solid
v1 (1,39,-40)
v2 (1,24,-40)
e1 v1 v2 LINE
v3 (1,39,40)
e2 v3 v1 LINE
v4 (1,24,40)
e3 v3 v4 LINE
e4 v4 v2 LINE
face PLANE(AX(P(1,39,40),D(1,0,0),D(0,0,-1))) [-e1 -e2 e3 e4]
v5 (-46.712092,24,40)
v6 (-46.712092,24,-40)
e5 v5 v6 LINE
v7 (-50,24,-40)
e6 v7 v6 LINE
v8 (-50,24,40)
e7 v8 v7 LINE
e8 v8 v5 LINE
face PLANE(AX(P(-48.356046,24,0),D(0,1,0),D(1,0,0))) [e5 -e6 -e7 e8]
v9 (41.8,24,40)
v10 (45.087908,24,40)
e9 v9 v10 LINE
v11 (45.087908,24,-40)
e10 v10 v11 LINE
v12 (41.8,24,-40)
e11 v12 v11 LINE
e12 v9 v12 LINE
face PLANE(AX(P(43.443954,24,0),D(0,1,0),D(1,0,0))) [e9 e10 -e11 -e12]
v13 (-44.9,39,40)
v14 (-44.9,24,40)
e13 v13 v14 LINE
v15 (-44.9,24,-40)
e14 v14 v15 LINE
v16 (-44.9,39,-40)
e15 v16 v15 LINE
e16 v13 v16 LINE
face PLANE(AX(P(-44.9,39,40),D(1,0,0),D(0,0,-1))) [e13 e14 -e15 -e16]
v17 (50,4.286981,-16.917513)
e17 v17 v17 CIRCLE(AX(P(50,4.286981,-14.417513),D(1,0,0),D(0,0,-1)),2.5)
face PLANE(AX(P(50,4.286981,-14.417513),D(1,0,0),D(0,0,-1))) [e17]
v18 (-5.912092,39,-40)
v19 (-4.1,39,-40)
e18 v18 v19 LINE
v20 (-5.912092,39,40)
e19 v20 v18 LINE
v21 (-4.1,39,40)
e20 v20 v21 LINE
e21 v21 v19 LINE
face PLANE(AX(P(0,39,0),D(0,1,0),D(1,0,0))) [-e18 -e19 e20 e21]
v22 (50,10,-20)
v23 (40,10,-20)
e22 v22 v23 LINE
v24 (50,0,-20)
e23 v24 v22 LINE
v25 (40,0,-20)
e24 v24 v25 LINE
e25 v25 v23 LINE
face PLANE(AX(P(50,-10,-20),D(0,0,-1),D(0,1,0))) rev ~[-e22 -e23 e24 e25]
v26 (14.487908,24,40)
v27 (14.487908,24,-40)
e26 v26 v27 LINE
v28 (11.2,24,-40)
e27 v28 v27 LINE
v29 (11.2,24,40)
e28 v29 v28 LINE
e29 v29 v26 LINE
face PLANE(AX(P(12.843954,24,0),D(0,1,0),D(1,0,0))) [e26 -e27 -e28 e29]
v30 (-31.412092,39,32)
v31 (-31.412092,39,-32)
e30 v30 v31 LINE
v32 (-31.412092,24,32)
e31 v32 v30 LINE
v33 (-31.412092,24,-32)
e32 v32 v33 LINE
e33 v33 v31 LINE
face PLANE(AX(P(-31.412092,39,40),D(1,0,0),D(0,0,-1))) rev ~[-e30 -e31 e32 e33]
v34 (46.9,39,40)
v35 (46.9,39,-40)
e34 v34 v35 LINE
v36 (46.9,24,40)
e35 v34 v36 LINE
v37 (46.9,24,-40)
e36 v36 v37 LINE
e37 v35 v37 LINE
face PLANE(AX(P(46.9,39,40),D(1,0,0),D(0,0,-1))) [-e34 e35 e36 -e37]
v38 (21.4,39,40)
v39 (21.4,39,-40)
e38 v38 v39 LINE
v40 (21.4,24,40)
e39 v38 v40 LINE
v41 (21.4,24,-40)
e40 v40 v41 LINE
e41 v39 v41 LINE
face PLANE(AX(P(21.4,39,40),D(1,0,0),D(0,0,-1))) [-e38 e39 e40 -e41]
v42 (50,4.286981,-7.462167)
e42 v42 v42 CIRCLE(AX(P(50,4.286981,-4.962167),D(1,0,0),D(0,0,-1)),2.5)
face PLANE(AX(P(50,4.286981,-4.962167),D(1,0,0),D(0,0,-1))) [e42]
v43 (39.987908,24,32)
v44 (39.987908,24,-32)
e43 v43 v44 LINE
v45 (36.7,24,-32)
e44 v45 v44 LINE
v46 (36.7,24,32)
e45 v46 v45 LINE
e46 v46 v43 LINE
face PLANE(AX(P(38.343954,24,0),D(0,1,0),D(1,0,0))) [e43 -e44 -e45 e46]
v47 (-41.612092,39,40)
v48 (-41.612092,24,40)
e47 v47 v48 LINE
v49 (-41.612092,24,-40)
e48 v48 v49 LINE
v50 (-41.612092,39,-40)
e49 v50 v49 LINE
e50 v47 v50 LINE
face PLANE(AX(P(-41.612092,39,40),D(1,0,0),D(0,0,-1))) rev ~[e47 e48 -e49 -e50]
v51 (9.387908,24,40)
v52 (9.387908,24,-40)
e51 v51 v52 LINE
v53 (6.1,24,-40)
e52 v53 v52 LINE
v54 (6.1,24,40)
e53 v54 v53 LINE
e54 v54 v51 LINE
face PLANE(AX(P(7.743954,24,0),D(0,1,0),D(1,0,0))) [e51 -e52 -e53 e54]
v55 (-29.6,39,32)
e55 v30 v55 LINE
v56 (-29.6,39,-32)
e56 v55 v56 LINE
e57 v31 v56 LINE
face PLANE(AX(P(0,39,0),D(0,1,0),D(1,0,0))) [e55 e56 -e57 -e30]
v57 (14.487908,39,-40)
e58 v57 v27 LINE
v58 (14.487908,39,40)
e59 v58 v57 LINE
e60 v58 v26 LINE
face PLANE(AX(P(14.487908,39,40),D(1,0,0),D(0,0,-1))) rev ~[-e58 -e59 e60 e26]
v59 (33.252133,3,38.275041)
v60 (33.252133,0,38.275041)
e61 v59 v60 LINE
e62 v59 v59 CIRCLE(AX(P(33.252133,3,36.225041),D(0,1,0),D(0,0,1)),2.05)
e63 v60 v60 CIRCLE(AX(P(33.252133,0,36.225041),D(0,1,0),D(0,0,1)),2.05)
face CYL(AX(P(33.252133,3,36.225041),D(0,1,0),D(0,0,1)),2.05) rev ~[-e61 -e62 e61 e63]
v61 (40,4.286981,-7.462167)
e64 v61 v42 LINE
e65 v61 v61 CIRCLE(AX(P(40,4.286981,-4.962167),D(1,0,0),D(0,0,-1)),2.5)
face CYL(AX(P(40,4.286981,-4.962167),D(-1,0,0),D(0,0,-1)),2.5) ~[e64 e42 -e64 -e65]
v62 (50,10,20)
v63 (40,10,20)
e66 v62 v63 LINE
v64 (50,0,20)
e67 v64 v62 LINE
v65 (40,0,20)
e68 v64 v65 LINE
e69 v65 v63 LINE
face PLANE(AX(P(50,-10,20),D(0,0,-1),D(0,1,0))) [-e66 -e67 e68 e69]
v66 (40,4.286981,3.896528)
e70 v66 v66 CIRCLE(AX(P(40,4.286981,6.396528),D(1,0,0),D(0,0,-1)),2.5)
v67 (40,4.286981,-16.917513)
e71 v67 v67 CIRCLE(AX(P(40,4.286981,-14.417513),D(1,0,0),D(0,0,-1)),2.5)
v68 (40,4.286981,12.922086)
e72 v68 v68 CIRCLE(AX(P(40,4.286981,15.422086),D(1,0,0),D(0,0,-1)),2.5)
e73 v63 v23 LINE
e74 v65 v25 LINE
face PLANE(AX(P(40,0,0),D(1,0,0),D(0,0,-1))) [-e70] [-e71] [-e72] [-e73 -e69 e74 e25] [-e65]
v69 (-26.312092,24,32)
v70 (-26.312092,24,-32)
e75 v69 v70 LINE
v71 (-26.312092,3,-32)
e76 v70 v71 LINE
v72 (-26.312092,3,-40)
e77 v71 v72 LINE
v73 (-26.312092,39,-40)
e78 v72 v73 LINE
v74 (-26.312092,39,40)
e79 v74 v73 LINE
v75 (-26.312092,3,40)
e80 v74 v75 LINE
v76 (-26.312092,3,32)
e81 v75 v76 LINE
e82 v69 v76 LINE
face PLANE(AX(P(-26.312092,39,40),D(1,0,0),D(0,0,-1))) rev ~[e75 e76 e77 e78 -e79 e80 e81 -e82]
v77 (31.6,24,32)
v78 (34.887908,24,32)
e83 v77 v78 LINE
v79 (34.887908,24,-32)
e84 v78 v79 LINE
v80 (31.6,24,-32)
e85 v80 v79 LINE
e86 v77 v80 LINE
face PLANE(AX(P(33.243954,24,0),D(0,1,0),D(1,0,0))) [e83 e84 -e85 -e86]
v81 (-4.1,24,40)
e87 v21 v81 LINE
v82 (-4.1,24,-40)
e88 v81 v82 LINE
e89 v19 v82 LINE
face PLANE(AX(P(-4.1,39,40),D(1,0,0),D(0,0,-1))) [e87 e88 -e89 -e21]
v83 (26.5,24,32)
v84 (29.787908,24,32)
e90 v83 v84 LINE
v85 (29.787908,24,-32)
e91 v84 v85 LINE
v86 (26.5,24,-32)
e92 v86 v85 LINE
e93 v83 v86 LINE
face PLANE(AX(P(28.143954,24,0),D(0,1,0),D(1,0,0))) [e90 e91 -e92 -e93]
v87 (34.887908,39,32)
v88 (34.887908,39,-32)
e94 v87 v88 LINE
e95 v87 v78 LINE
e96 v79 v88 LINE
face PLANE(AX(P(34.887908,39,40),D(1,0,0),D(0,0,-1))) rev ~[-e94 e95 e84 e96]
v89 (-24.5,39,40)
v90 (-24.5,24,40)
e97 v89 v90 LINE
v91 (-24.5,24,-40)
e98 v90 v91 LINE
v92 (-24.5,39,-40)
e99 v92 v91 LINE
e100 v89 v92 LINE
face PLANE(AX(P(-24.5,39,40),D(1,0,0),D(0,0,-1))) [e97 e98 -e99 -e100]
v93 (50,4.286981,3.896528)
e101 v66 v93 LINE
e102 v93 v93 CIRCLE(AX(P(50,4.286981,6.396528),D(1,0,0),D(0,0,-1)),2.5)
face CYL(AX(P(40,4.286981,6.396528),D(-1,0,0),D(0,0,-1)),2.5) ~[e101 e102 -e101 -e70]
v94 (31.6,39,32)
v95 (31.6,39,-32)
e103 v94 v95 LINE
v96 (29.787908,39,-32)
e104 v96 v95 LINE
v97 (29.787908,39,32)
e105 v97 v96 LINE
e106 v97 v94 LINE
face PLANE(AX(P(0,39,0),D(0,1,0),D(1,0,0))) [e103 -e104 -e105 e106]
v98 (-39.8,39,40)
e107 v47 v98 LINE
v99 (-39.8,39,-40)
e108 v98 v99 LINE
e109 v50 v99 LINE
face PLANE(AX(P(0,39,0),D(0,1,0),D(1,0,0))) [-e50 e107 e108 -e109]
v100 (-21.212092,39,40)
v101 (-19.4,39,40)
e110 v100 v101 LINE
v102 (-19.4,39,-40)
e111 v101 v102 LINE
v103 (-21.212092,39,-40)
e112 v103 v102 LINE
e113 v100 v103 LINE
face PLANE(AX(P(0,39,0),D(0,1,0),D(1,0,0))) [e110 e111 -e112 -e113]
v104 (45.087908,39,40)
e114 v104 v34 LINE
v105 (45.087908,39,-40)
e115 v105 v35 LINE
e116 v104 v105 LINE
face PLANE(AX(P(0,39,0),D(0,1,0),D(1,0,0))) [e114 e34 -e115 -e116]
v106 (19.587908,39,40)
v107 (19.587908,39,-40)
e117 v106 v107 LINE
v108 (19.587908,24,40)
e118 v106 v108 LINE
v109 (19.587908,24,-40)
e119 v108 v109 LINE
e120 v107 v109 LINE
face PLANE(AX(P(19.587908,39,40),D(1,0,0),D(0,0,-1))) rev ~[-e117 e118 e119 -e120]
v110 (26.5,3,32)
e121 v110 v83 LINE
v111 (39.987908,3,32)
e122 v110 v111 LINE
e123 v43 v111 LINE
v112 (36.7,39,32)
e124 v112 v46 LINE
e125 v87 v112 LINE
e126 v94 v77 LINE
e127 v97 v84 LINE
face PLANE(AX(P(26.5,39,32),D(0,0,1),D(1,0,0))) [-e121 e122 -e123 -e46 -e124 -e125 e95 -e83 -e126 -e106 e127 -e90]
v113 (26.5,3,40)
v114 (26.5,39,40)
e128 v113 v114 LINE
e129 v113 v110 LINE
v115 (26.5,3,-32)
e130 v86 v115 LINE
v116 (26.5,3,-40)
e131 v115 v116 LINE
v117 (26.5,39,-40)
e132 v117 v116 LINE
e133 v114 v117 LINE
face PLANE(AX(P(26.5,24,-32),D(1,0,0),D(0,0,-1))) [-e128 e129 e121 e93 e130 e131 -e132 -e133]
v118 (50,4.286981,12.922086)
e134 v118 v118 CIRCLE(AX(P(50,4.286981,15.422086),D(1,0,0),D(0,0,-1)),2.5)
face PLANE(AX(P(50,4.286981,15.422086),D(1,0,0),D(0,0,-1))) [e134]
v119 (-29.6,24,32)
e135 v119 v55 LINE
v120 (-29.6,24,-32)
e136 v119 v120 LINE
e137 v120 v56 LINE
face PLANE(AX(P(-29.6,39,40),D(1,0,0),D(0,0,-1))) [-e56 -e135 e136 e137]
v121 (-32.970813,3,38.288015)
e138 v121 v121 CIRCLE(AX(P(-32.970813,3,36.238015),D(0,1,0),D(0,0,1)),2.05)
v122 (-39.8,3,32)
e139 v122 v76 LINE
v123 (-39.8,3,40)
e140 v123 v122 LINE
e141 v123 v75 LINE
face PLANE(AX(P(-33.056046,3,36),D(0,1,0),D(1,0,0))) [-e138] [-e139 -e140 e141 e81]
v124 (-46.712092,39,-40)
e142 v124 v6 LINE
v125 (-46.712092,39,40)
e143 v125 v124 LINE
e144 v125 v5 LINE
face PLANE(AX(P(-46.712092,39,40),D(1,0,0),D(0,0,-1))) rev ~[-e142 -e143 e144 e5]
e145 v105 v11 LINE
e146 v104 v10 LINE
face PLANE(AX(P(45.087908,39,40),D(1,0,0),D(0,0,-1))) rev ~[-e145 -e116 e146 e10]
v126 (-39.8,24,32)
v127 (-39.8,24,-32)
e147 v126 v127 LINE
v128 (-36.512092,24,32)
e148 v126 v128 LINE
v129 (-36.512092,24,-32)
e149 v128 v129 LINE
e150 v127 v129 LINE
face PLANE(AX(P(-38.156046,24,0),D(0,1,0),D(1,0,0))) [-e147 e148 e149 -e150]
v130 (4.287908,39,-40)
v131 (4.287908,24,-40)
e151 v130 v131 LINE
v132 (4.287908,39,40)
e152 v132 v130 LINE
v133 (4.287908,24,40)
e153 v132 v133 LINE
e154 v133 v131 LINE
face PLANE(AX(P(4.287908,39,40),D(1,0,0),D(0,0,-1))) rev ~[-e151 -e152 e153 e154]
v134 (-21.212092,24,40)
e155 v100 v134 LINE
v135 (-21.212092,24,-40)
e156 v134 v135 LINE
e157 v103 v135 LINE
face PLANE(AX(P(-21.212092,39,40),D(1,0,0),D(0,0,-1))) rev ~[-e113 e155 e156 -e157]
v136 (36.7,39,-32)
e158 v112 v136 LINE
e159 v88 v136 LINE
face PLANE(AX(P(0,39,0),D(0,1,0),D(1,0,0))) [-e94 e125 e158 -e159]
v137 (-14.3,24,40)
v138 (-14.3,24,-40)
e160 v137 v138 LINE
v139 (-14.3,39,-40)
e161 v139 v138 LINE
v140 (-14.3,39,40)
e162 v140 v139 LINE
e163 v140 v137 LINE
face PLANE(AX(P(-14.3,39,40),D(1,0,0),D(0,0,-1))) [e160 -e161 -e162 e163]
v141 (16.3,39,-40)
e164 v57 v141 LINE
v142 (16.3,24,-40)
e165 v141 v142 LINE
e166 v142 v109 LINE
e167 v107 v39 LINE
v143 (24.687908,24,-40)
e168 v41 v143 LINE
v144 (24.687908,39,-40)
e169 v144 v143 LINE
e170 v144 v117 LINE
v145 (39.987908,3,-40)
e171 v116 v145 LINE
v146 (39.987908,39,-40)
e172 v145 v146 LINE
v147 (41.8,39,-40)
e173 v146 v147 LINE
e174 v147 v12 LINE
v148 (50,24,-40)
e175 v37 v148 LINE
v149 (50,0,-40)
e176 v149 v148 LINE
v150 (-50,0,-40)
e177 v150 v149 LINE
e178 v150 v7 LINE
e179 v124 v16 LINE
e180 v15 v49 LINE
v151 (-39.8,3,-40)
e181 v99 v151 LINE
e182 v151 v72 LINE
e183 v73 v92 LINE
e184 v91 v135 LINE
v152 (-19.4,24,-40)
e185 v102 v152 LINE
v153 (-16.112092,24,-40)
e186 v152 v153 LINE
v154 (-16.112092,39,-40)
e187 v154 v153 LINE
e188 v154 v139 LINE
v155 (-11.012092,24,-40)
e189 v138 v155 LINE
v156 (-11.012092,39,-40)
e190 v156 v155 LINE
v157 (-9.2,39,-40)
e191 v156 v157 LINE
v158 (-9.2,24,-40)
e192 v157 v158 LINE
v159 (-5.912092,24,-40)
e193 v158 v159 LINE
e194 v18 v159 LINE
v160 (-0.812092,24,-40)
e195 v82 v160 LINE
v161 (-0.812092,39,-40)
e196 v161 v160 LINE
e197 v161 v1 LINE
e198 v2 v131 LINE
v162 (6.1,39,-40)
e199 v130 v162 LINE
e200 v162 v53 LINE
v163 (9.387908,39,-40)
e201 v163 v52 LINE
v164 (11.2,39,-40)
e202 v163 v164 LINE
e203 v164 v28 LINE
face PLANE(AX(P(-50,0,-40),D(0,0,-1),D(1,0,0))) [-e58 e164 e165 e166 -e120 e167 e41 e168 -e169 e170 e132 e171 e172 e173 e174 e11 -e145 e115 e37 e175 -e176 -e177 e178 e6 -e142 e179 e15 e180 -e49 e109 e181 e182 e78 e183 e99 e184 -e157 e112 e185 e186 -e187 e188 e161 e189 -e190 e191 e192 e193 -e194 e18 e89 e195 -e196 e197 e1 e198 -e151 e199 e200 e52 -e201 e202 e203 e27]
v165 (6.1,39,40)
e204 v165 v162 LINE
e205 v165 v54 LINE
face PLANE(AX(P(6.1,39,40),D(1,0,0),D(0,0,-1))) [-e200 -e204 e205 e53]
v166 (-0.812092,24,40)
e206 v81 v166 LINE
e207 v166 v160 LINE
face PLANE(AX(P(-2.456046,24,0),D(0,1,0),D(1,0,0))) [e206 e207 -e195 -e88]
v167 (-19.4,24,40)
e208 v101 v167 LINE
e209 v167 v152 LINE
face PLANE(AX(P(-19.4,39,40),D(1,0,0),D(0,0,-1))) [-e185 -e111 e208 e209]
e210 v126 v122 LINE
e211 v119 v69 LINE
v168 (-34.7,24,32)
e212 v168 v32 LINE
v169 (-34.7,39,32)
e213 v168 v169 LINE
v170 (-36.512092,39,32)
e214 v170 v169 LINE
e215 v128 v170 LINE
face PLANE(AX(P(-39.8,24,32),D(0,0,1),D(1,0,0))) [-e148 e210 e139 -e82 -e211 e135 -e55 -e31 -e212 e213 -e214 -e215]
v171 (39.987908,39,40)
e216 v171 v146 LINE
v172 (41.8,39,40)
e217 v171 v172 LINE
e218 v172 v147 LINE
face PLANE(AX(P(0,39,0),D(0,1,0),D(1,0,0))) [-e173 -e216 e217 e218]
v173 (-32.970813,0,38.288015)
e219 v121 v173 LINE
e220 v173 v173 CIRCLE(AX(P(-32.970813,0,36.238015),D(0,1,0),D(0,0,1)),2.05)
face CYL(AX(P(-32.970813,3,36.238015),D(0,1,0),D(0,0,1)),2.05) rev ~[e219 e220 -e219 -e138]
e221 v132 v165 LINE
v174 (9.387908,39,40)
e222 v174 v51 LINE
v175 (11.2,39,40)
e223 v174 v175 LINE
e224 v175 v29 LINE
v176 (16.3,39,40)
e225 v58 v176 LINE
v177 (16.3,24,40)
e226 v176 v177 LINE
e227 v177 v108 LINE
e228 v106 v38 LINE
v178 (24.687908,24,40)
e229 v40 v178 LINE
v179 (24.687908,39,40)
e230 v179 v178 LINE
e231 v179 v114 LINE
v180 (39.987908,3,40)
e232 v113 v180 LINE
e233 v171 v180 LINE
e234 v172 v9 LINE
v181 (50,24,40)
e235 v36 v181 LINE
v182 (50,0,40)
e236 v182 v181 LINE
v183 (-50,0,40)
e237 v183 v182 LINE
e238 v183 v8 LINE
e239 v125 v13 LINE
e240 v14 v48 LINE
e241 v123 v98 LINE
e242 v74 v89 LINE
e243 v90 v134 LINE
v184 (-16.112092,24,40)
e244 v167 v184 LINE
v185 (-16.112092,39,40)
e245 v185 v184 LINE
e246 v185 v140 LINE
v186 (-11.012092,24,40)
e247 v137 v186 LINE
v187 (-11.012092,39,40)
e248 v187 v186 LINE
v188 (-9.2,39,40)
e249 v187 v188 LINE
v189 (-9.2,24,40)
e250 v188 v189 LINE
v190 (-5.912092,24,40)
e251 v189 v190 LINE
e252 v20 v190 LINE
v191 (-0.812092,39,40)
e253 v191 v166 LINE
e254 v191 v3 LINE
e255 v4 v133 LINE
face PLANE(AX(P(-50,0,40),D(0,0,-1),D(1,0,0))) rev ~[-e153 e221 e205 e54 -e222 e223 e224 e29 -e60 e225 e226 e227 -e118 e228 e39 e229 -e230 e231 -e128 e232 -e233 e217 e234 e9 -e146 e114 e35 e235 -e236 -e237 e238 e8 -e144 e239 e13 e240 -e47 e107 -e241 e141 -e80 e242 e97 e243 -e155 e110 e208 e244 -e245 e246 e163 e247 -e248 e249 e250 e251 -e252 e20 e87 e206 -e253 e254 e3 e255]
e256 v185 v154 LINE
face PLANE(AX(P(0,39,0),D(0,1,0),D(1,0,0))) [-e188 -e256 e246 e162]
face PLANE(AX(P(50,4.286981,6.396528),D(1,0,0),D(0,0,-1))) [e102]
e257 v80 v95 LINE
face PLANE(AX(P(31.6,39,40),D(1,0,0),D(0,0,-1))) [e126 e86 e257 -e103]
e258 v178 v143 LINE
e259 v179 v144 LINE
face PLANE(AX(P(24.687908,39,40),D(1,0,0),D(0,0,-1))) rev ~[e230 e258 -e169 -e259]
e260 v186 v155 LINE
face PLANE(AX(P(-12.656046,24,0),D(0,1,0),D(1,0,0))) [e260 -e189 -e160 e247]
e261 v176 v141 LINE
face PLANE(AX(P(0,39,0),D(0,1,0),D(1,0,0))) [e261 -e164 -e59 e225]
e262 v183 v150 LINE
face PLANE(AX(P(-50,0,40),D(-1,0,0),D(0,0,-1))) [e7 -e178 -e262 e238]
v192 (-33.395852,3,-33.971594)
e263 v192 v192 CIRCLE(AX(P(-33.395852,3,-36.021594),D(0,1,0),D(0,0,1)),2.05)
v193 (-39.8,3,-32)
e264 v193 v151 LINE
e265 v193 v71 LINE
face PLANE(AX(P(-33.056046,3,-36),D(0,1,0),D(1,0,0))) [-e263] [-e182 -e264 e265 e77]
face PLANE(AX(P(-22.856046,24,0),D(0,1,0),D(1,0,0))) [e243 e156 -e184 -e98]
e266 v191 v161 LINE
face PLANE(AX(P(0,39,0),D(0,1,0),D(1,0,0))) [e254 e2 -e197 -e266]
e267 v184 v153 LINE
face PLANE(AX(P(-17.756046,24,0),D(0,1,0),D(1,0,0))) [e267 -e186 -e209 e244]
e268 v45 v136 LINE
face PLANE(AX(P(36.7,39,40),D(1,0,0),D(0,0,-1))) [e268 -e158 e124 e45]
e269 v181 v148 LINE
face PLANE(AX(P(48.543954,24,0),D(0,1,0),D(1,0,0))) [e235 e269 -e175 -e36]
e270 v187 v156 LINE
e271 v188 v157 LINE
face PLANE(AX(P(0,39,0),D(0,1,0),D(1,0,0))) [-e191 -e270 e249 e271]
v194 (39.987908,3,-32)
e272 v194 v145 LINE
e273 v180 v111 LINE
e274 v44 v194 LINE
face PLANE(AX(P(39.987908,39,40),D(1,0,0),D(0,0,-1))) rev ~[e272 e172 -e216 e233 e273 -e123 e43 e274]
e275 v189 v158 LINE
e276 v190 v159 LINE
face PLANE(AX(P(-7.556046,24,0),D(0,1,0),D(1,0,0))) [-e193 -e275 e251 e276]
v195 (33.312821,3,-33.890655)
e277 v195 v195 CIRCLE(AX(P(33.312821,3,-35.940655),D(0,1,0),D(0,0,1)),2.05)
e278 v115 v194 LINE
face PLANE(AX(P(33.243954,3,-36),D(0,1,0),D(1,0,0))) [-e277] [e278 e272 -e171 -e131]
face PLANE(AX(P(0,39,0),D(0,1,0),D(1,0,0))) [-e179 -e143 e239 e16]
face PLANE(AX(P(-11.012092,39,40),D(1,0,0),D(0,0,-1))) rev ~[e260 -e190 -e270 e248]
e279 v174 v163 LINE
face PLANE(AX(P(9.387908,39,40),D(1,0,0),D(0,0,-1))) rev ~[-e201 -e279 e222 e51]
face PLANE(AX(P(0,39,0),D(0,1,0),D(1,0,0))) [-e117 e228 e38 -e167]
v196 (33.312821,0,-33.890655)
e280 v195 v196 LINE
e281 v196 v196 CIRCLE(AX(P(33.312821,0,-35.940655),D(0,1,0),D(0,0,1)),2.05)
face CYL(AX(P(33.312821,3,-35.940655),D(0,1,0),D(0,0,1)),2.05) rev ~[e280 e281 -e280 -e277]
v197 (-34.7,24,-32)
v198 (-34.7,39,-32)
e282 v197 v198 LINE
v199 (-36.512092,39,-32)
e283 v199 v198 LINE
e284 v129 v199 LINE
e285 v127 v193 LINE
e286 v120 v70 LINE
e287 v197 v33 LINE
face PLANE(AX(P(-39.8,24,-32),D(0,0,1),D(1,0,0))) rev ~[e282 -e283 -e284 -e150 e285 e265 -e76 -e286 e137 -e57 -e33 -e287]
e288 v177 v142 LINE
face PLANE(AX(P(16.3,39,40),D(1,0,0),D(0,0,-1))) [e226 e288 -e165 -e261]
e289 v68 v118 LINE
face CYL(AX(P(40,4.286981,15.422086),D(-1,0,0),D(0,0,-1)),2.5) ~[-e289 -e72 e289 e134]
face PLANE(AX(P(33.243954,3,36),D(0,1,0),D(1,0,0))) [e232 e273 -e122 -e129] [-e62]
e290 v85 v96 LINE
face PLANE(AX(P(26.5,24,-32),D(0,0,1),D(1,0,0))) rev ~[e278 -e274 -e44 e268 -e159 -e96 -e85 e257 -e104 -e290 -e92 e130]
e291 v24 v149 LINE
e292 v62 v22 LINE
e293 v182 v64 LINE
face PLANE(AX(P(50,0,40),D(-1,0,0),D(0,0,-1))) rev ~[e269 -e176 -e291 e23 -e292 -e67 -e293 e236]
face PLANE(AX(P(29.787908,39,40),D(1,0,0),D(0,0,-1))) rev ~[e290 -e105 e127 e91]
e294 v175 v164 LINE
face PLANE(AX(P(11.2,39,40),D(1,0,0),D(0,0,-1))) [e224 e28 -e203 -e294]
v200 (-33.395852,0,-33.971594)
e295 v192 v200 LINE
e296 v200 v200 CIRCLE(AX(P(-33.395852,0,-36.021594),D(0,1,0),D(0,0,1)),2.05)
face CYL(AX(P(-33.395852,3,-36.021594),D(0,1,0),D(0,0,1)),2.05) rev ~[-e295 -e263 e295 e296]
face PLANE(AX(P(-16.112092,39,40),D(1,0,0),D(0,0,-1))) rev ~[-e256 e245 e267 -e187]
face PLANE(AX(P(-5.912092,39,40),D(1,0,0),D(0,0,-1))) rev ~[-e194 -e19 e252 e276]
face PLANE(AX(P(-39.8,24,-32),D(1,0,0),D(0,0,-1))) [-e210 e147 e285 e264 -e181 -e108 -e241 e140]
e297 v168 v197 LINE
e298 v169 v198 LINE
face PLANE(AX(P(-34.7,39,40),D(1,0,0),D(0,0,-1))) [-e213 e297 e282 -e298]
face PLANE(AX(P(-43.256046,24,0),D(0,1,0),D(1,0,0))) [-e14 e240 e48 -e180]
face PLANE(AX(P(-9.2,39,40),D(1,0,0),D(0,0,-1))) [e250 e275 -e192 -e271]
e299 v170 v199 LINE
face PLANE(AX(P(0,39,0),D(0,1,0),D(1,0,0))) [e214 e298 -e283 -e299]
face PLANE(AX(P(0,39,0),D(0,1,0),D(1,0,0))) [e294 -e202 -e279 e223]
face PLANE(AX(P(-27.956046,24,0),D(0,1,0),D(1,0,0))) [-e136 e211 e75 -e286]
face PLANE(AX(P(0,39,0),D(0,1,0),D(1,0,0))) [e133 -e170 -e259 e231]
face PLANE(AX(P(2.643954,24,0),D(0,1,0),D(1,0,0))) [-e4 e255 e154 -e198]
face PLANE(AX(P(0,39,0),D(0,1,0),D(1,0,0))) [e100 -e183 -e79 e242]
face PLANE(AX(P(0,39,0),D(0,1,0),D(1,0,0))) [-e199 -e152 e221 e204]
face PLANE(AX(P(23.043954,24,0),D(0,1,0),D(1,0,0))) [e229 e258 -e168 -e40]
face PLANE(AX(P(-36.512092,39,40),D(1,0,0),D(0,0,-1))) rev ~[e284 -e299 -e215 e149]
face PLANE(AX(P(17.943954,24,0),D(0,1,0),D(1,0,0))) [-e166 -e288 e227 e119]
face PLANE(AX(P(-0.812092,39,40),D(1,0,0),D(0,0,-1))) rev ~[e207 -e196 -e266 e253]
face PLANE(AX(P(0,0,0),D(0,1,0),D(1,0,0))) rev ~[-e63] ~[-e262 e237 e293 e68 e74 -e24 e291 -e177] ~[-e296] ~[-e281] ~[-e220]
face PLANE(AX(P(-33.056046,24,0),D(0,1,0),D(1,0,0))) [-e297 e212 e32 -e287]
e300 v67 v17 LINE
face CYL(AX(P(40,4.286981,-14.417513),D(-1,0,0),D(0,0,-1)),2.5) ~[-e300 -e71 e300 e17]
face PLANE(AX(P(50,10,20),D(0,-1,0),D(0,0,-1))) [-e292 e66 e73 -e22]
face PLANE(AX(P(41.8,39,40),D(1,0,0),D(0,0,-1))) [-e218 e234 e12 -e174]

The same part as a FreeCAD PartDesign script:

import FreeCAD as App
import Part
import Sketcher
from FreeCAD import Vector
Q = App.Units.Quantity


def add_polygon(sketch, points):
    """Adds a closed chain of lines whose ends are joined by coincident constraints."""
    first, n = sketch.GeometryCount, len(points)
    for a, b in zip(points, points[1:] + points[:1]):
        sketch.addGeometry(Part.LineSegment(App.Vector(*a, 0), App.Vector(*b, 0)), False)
    for i in range(n):
        sketch.addConstraint(Sketcher.Constraint("Coincident", first + i, 2, first + (i + 1) % n, 1))

doc = App.newDocument("Part")
body = doc.addObject("PartDesign::Body", "Body")

# Sketch on XZ plane
sketch1 = doc.addObject("Sketcher::SketchObject", "Sketch")
body.addObject(sketch1)
sketch1.AttachmentSupport = (doc.XZ_Plane, [""])
sketch1.MapMode = "FlatFace"
add_polygon(sketch1, [(-50, -40), (-50, 40), (50, 40), (50, -40)])  # lines 0-3
sketch1.addConstraint(Sketcher.Constraint("Vertical", 0))
sketch1.addConstraint(Sketcher.Constraint("Horizontal", 1))
sketch1.addConstraint(Sketcher.Constraint("Vertical", 2))
sketch1.addConstraint(Sketcher.Constraint("Horizontal", 3))
sketch1.addConstraint(Sketcher.Constraint("Symmetric", 0, 2, 2, 2, -1, 1))
sketch1.addConstraint(Sketcher.Constraint("DistanceX", 1, 1, 1, 2, Q("100 mm")))
sketch1.addConstraint(Sketcher.Constraint("DistanceY", 0, 1, 0, 2, Q("80 mm")))
pad1 = doc.addObject("PartDesign::Pad", "Pad")
body.addObject(pad1)
pad1.Profile = sketch1
pad1.Length = 39
pad1.Reversed = True

# Sketch on XZ plane
sketch2 = doc.addObject("Sketcher::SketchObject", "Sketch001")
body.addObject(sketch2)
sketch2.AttachmentSupport = (doc.XZ_Plane, [""])
sketch2.MapMode = "FlatFace"
sketch2.AttachmentOffset = App.Placement(Vector(0, 0, -39), App.Rotation())
add_polygon(sketch2, [(-50, -40), (-50, 40), (-46.7, 40), (-46.7, -40)])  # lines 0-3
add_polygon(sketch2, [(-44.9, -40), (-44.9, 40), (-41.6, 40), (-41.6, -40)])  # lines 4-7
add_polygon(sketch2, [(-39.8, -40), (-39.8, 40), (-36.5, 40), (-36.5, -40)])  # lines 8-11
add_polygon(sketch2, [(-34.7, -40), (-34.7, 40), (-31.4, 40), (-31.4, -40)])  # lines 12-15
add_polygon(sketch2, [(-29.6, -40), (-29.6, 40), (-26.3, 40), (-26.3, -40)])  # lines 16-19
add_polygon(sketch2, [(-24.5, -40), (-24.5, 40), (-21.2, 40), (-21.2, -40)])  # lines 20-23
add_polygon(sketch2, [(-19.4, -40), (-19.4, 40), (-16.1, 40), (-16.1, -40)])  # lines 24-27
add_polygon(sketch2, [(-14.3, -40), (-14.3, 40), (-11, 40), (-11, -40)])  # lines 28-31
add_polygon(sketch2, [(-9.2, -40), (-9.2, 40), (-5.9, 40), (-5.9, -40)])  # lines 32-35
add_polygon(sketch2, [(-4.1, -40), (-4.1, 40), (-0.8, 40), (-0.8, -40)])  # lines 36-39
add_polygon(sketch2, [(1, -40), (1, 40), (4.3, 40), (4.3, -40)])  # lines 40-43
add_polygon(sketch2, [(6.1, -40), (6.1, 40), (9.4, 40), (9.4, -40)])  # lines 44-47
add_polygon(sketch2, [(11.2, -40), (11.2, 40), (14.5, 40), (14.5, -40)])  # lines 48-51
add_polygon(sketch2, [(16.3, -40), (16.3, 40), (19.6, 40), (19.6, -40)])  # lines 52-55
add_polygon(sketch2, [(21.4, -40), (21.4, 40), (24.7, 40), (24.7, -40)])  # lines 56-59
add_polygon(sketch2, [(26.5, -40), (26.5, 40), (29.8, 40), (29.8, -40)])  # lines 60-63
add_polygon(sketch2, [(31.6, -40), (31.6, 40), (34.9, 40), (34.9, -40)])  # lines 64-67
add_polygon(sketch2, [(36.7, -40), (36.7, 40), (40, 40), (40, -40)])  # lines 68-71
add_polygon(sketch2, [(41.8, -40), (41.8, 40), (45.1, 40), (45.1, -40)])  # lines 72-75
add_polygon(sketch2, [(46.9, -40), (46.9, 40), (50.2, 40), (50.2, -40)])  # lines 76-79
sketch2.addConstraint(Sketcher.Constraint("Vertical", 0))
sketch2.addConstraint(Sketcher.Constraint("Horizontal", 1))
sketch2.addConstraint(Sketcher.Constraint("Vertical", 2))
sketch2.addConstraint(Sketcher.Constraint("Horizontal", 3))
sketch2.addConstraint(Sketcher.Constraint("Vertical", 4))
sketch2.addConstraint(Sketcher.Constraint("Horizontal", 5))
sketch2.addConstraint(Sketcher.Constraint("Vertical", 6))
sketch2.addConstraint(Sketcher.Constraint("Horizontal", 7))
sketch2.addConstraint(Sketcher.Constraint("Vertical", 8))
sketch2.addConstraint(Sketcher.Constraint("Horizontal", 9))
sketch2.addConstraint(Sketcher.Constraint("Vertical", 10))
sketch2.addConstraint(Sketcher.Constraint("Horizontal", 11))
sketch2.addConstraint(Sketcher.Constraint("Vertical", 12))
sketch2.addConstraint(Sketcher.Constraint("Horizontal", 13))
sketch2.addConstraint(Sketcher.Constraint("Vertical", 14))
sketch2.addConstraint(Sketcher.Constraint("Horizontal", 15))
sketch2.addConstraint(Sketcher.Constraint("Vertical", 16))
sketch2.addConstraint(Sketcher.Constraint("Horizontal", 17))
sketch2.addConstraint(Sketcher.Constraint("Vertical", 18))
sketch2.addConstraint(Sketcher.Constraint("Horizontal", 19))
sketch2.addConstraint(Sketcher.Constraint("Vertical", 20))
sketch2.addConstraint(Sketcher.Constraint("Horizontal", 21))
sketch2.addConstraint(Sketcher.Constraint("Vertical", 22))
sketch2.addConstraint(Sketcher.Constraint("Horizontal", 23))
sketch2.addConstraint(Sketcher.Constraint("Vertical", 24))
sketch2.addConstraint(Sketcher.Constraint("Horizontal", 25))
sketch2.addConstraint(Sketcher.Constraint("Vertical", 26))
sketch2.addConstraint(Sketcher.Constraint("Horizontal", 27))
sketch2.addConstraint(Sketcher.Constraint("Vertical", 28))
sketch2.addConstraint(Sketcher.Constraint("Horizontal", 29))
sketch2.addConstraint(Sketcher.Constraint("Vertical", 30))
sketch2.addConstraint(Sketcher.Constraint("Horizontal", 31))
sketch2.addConstraint(Sketcher.Constraint("Vertical", 32))
sketch2.addConstraint(Sketcher.Constraint("Horizontal", 33))
sketch2.addConstraint(Sketcher.Constraint("Vertical", 34))
sketch2.addConstraint(Sketcher.Constraint("Horizontal", 35))
sketch2.addConstraint(Sketcher.Constraint("Vertical", 36))
sketch2.addConstraint(Sketcher.Constraint("Horizontal", 37))
sketch2.addConstraint(Sketcher.Constraint("Vertical", 38))
sketch2.addConstraint(Sketcher.Constraint("Horizontal", 39))
sketch2.addConstraint(Sketcher.Constraint("Vertical", 40))
sketch2.addConstraint(Sketcher.Constraint("Horizontal", 41))
sketch2.addConstraint(Sketcher.Constraint("Vertical", 42))
sketch2.addConstraint(Sketcher.Constraint("Horizontal", 43))
sketch2.addConstraint(Sketcher.Constraint("Vertical", 44))
sketch2.addConstraint(Sketcher.Constraint("Horizontal", 45))
sketch2.addConstraint(Sketcher.Constraint("Vertical", 46))
sketch2.addConstraint(Sketcher.Constraint("Horizontal", 47))
sketch2.addConstraint(Sketcher.Constraint("Vertical", 48))
sketch2.addConstraint(Sketcher.Constraint("Horizontal", 49))
sketch2.addConstraint(Sketcher.Constraint("Vertical", 50))
sketch2.addConstraint(Sketcher.Constraint("Horizontal", 51))
sketch2.addConstraint(Sketcher.Constraint("Vertical", 52))
sketch2.addConstraint(Sketcher.Constraint("Horizontal", 53))
sketch2.addConstraint(Sketcher.Constraint("Vertical", 54))
sketch2.addConstraint(Sketcher.Constraint("Horizontal", 55))
sketch2.addConstraint(Sketcher.Constraint("Vertical", 56))
sketch2.addConstraint(Sketcher.Constraint("Horizontal", 57))
sketch2.addConstraint(Sketcher.Constraint("Vertical", 58))
sketch2.addConstraint(Sketcher.Constraint("Horizontal", 59))
sketch2.addConstraint(Sketcher.Constraint("Vertical", 60))
sketch2.addConstraint(Sketcher.Constraint("Horizontal", 61))
sketch2.addConstraint(Sketcher.Constraint("Vertical", 62))
sketch2.addConstraint(Sketcher.Constraint("Horizontal", 63))
sketch2.addConstraint(Sketcher.Constraint("Vertical", 64))
sketch2.addConstraint(Sketcher.Constraint("Horizontal", 65))
sketch2.addConstraint(Sketcher.Constraint("Vertical", 66))
sketch2.addConstraint(Sketcher.Constraint("Horizontal", 67))
sketch2.addConstraint(Sketcher.Constraint("Vertical", 68))
sketch2.addConstraint(Sketcher.Constraint("Horizontal", 69))
sketch2.addConstraint(Sketcher.Constraint("Vertical", 70))
sketch2.addConstraint(Sketcher.Constraint("Horizontal", 71))
sketch2.addConstraint(Sketcher.Constraint("Vertical", 72))
sketch2.addConstraint(Sketcher.Constraint("Horizontal", 73))
sketch2.addConstraint(Sketcher.Constraint("Vertical", 74))
sketch2.addConstraint(Sketcher.Constraint("Horizontal", 75))
sketch2.addConstraint(Sketcher.Constraint("Vertical", 76))
sketch2.addConstraint(Sketcher.Constraint("Horizontal", 77))
sketch2.addConstraint(Sketcher.Constraint("Vertical", 78))
sketch2.addConstraint(Sketcher.Constraint("Horizontal", 79))
sketch2.addConstraint(Sketcher.Constraint("Horizontal", 1, 2, 4, 2))
sketch2.addConstraint(Sketcher.Constraint("Horizontal", 3, 2, 6, 2))
sketch2.addConstraint(Sketcher.Constraint("Horizontal", 5, 2, 8, 2))
sketch2.addConstraint(Sketcher.Constraint("Horizontal", 7, 2, 10, 2))
sketch2.addConstraint(Sketcher.Constraint("Horizontal", 9, 2, 12, 2))
sketch2.addConstraint(Sketcher.Constraint("Horizontal", 11, 2, 14, 2))
sketch2.addConstraint(Sketcher.Constraint("Horizontal", 13, 2, 16, 2))
sketch2.addConstraint(Sketcher.Constraint("Horizontal", 15, 2, 18, 2))
sketch2.addConstraint(Sketcher.Constraint("Horizontal", 17, 2, 20, 2))
sketch2.addConstraint(Sketcher.Constraint("Horizontal", 19, 2, 22, 2))
sketch2.addConstraint(Sketcher.Constraint("Horizontal", 21, 2, 24, 2))
sketch2.addConstraint(Sketcher.Constraint("Horizontal", 23, 2, 26, 2))
sketch2.addConstraint(Sketcher.Constraint("Horizontal", 25, 2, 28, 2))
sketch2.addConstraint(Sketcher.Constraint("Horizontal", 27, 2, 30, 2))
sketch2.addConstraint(Sketcher.Constraint("Horizontal", 29, 2, 32, 2))
sketch2.addConstraint(Sketcher.Constraint("Horizontal", 31, 2, 34, 2))
sketch2.addConstraint(Sketcher.Constraint("Horizontal", 33, 2, 36, 2))
sketch2.addConstraint(Sketcher.Constraint("Horizontal", 35, 2, 38, 2))
sketch2.addConstraint(Sketcher.Constraint("Horizontal", 37, 2, 40, 2))
sketch2.addConstraint(Sketcher.Constraint("Horizontal", 39, 2, 42, 2))
sketch2.addConstraint(Sketcher.Constraint("Horizontal", 41, 2, 44, 2))
sketch2.addConstraint(Sketcher.Constraint("Horizontal", 43, 2, 46, 2))
sketch2.addConstraint(Sketcher.Constraint("Horizontal", 45, 2, 48, 2))
sketch2.addConstraint(Sketcher.Constraint("Horizontal", 47, 2, 50, 2))
sketch2.addConstraint(Sketcher.Constraint("Horizontal", 49, 2, 52, 2))
sketch2.addConstraint(Sketcher.Constraint("Horizontal", 51, 2, 54, 2))
sketch2.addConstraint(Sketcher.Constraint("Horizontal", 53, 2, 56, 2))
sketch2.addConstraint(Sketcher.Constraint("Horizontal", 55, 2, 58, 2))
sketch2.addConstraint(Sketcher.Constraint("Horizontal", 57, 2, 60, 2))
sketch2.addConstraint(Sketcher.Constraint("Horizontal", 59, 2, 62, 2))
sketch2.addConstraint(Sketcher.Constraint("Horizontal", 61, 2, 64, 2))
sketch2.addConstraint(Sketcher.Constraint("Horizontal", 63, 2, 66, 2))
sketch2.addConstraint(Sketcher.Constraint("Horizontal", 65, 2, 68, 2))
sketch2.addConstraint(Sketcher.Constraint("Horizontal", 67, 2, 70, 2))
sketch2.addConstraint(Sketcher.Constraint("Horizontal", 69, 2, 72, 2))
sketch2.addConstraint(Sketcher.Constraint("Horizontal", 71, 2, 74, 2))
sketch2.addConstraint(Sketcher.Constraint("Horizontal", 73, 2, 76, 2))
sketch2.addConstraint(Sketcher.Constraint("Horizontal", 75, 2, 78, 2))
sketch2.addConstraint(Sketcher.Constraint("Equal", 3, 5))
sketch2.addConstraint(Sketcher.Constraint("Equal", 7, 9))
sketch2.addConstraint(Sketcher.Constraint("Equal", 11, 13))
sketch2.addConstraint(Sketcher.Constraint("Equal", 15, 17))
sketch2.addConstraint(Sketcher.Constraint("Equal", 19, 21))
sketch2.addConstraint(Sketcher.Constraint("Equal", 23, 25))
sketch2.addConstraint(Sketcher.Constraint("Equal", 27, 29))
sketch2.addConstraint(Sketcher.Constraint("Equal", 31, 33))
sketch2.addConstraint(Sketcher.Constraint("Equal", 35, 37))
sketch2.addConstraint(Sketcher.Constraint("Equal", 39, 41))
sketch2.addConstraint(Sketcher.Constraint("Equal", 43, 45))
sketch2.addConstraint(Sketcher.Constraint("Equal", 47, 49))
sketch2.addConstraint(Sketcher.Constraint("Equal", 51, 53))
sketch2.addConstraint(Sketcher.Constraint("Equal", 55, 57))
sketch2.addConstraint(Sketcher.Constraint("Equal", 59, 61))
sketch2.addConstraint(Sketcher.Constraint("Equal", 63, 65))
sketch2.addConstraint(Sketcher.Constraint("Equal", 67, 69))
sketch2.addConstraint(Sketcher.Constraint("Equal", 71, 73))
sketch2.addConstraint(Sketcher.Constraint("Equal", 75, 77))
sketch2.addConstraint(Sketcher.Constraint("DistanceY", 0, 1, 0, 2, Q("80 mm")))
sketch2.addConstraint(Sketcher.Constraint("DistanceX", 0, 2, -1, 1, Q("50 mm")))
sketch2.addConstraint(Sketcher.Constraint("DistanceY", -1, 1, 0, 2, Q("40 mm")))
sketch2.addConstraint(Sketcher.Constraint("DistanceX", -1, 1, 40, 2, Q("1 mm")))
sketch2.addConstraint(Sketcher.Constraint("DistanceX", 4, 2, -1, 1, Q("44.9 mm")))
sketch2.addConstraint(Sketcher.Constraint("DistanceX", 8, 2, -1, 1, Q("39.8 mm")))
sketch2.addConstraint(Sketcher.Constraint("DistanceX", 12, 2, -1, 1, Q("34.7 mm")))
sketch2.addConstraint(Sketcher.Constraint("DistanceX", 16, 2, -1, 1, Q("29.6 mm")))
sketch2.addConstraint(Sketcher.Constraint("DistanceX", 20, 2, -1, 1, Q("24.5 mm")))
sketch2.addConstraint(Sketcher.Constraint("DistanceX", 24, 2, -1, 1, Q("19.4 mm")))
sketch2.addConstraint(Sketcher.Constraint("DistanceX", 28, 2, -1, 1, Q("14.3 mm")))
sketch2.addConstraint(Sketcher.Constraint("DistanceX", 32, 2, -1, 1, Q("9.2 mm")))
sketch2.addConstraint(Sketcher.Constraint("DistanceX", 36, 2, -1, 1, Q("4.1 mm")))
sketch2.addConstraint(Sketcher.Constraint("DistanceX", -1, 1, 44, 2, Q("6.1 mm")))
sketch2.addConstraint(Sketcher.Constraint("DistanceX", -1, 1, 48, 2, Q("11.2 mm")))
sketch2.addConstraint(Sketcher.Constraint("DistanceX", -1, 1, 52, 2, Q("16.3 mm")))
sketch2.addConstraint(Sketcher.Constraint("DistanceX", -1, 1, 56, 2, Q("21.4 mm")))
sketch2.addConstraint(Sketcher.Constraint("DistanceX", -1, 1, 60, 2, Q("26.5 mm")))
sketch2.addConstraint(Sketcher.Constraint("DistanceX", -1, 1, 64, 2, Q("31.6 mm")))
sketch2.addConstraint(Sketcher.Constraint("DistanceX", -1, 1, 68, 2, Q("36.7 mm")))
sketch2.addConstraint(Sketcher.Constraint("DistanceX", -1, 1, 72, 2, Q("41.8 mm")))
sketch2.addConstraint(Sketcher.Constraint("DistanceX", -1, 1, 76, 2, Q("46.9 mm")))
sketch2.addConstraint(Sketcher.Constraint("DistanceX", 1, 1, 1, 2, Q("3.287908 mm")))
pocket1 = doc.addObject("PartDesign::Pocket", "Pocket")
body.addObject(pocket1)
pocket1.Profile = sketch2
pocket1.Length = 15
pocket1.Reversed = True

# Sketch on XZ plane
sketch3 = doc.addObject("Sketcher::SketchObject", "Sketch002")
body.addObject(sketch3)
sketch3.AttachmentSupport = (doc.XZ_Plane, [""])
sketch3.MapMode = "FlatFace"
sketch3.AttachmentOffset = App.Placement(Vector(0, 0, -24), App.Rotation())
add_polygon(sketch3, [(-40, -40), (-40, -32), (-26, -32), (-26, -40)])  # lines 0-3
sketch3.addConstraint(Sketcher.Constraint("Vertical", 0))
sketch3.addConstraint(Sketcher.Constraint("Horizontal", 1))
sketch3.addConstraint(Sketcher.Constraint("Vertical", 2))
sketch3.addConstraint(Sketcher.Constraint("Horizontal", 3))
sketch3.addConstraint(Sketcher.Constraint("DistanceY", 0, 1, 0, 2, Q("8 mm")))
sketch3.addConstraint(Sketcher.Constraint("DistanceY", 0, 2, -1, 1, Q("32 mm")))
sketch3.addConstraint(Sketcher.Constraint("DistanceX", 0, 2, -1, 1, Q("39.8 mm")))
sketch3.addConstraint(Sketcher.Constraint("DistanceX", 1, 1, 1, 2, Q("13.487908 mm")))
pocket2 = doc.addObject("PartDesign::Pocket", "Pocket001")
body.addObject(pocket2)
pocket2.Profile = sketch3
pocket2.Length = 21
pocket2.Reversed = True

# Sketch on XZ plane
sketch4 = doc.addObject("Sketcher::SketchObject", "Sketch003")
body.addObject(sketch4)
sketch4.AttachmentSupport = (doc.XZ_Plane, [""])
sketch4.MapMode = "FlatFace"
sketch4.AttachmentOffset = App.Placement(Vector(0, 0, -24), App.Rotation())
add_polygon(sketch4, [(-40, -40), (-40, -32), (-26, -32), (-26, -40)])  # lines 0-3
sketch4.addConstraint(Sketcher.Constraint("Vertical", 0))
sketch4.addConstraint(Sketcher.Constraint("Horizontal", 1))
sketch4.addConstraint(Sketcher.Constraint("Vertical", 2))
sketch4.addConstraint(Sketcher.Constraint("Horizontal", 3))
sketch4.addConstraint(Sketcher.Constraint("DistanceY", 0, 1, 0, 2, Q("8 mm")))
sketch4.addConstraint(Sketcher.Constraint("DistanceY", 0, 2, -1, 1, Q("32 mm")))
sketch4.addConstraint(Sketcher.Constraint("DistanceX", 0, 2, -1, 1, Q("39.8 mm")))
sketch4.addConstraint(Sketcher.Constraint("DistanceX", 1, 1, 1, 2, Q("13.487908 mm")))
pocket3 = doc.addObject("PartDesign::Pocket", "Pocket002")
body.addObject(pocket3)
pocket3.Profile = sketch4
pocket3.Length = 15

# Sketch on XZ plane
sketch5 = doc.addObject("Sketcher::SketchObject", "Sketch004")
body.addObject(sketch5)
sketch5.AttachmentSupport = (doc.XZ_Plane, [""])
sketch5.MapMode = "FlatFace"
sketch5.AttachmentOffset = App.Placement(Vector(0, 0, -24), App.Rotation())
add_polygon(sketch5, [(26, -40), (26, -32), (40, -32), (40, -40)])  # lines 0-3
sketch5.addConstraint(Sketcher.Constraint("Vertical", 0))
sketch5.addConstraint(Sketcher.Constraint("Horizontal", 1))
sketch5.addConstraint(Sketcher.Constraint("Vertical", 2))
sketch5.addConstraint(Sketcher.Constraint("Horizontal", 3))
sketch5.addConstraint(Sketcher.Constraint("DistanceY", 0, 1, 0, 2, Q("8 mm")))
sketch5.addConstraint(Sketcher.Constraint("DistanceY", 0, 2, -1, 1, Q("32 mm")))
sketch5.addConstraint(Sketcher.Constraint("DistanceX", -1, 1, 0, 2, Q("26.5 mm")))
sketch5.addConstraint(Sketcher.Constraint("DistanceX", 1, 1, 1, 2, Q("13.487908 mm")))
pocket4 = doc.addObject("PartDesign::Pocket", "Pocket003")
body.addObject(pocket4)
pocket4.Profile = sketch5
pocket4.Length = 21
pocket4.Reversed = True

# Sketch on XZ plane
sketch6 = doc.addObject("Sketcher::SketchObject", "Sketch005")
body.addObject(sketch6)
sketch6.AttachmentSupport = (doc.XZ_Plane, [""])
sketch6.MapMode = "FlatFace"
sketch6.AttachmentOffset = App.Placement(Vector(0, 0, -24), App.Rotation())
add_polygon(sketch6, [(26, -40), (26, -32), (40, -32), (40, -40)])  # lines 0-3
sketch6.addConstraint(Sketcher.Constraint("Vertical", 0))
sketch6.addConstraint(Sketcher.Constraint("Horizontal", 1))
sketch6.addConstraint(Sketcher.Constraint("Vertical", 2))
sketch6.addConstraint(Sketcher.Constraint("Horizontal", 3))
sketch6.addConstraint(Sketcher.Constraint("DistanceY", 0, 1, 0, 2, Q("8 mm")))
sketch6.addConstraint(Sketcher.Constraint("DistanceY", 0, 2, -1, 1, Q("32 mm")))
sketch6.addConstraint(Sketcher.Constraint("DistanceX", -1, 1, 0, 2, Q("26.5 mm")))
sketch6.addConstraint(Sketcher.Constraint("DistanceX", 1, 1, 1, 2, Q("13.487908 mm")))
pocket5 = doc.addObject("PartDesign::Pocket", "Pocket004")
body.addObject(pocket5)
pocket5.Profile = sketch6
pocket5.Length = 15

# Sketch on XZ plane
sketch7 = doc.addObject("Sketcher::SketchObject", "Sketch006")
body.addObject(sketch7)
sketch7.AttachmentSupport = (doc.XZ_Plane, [""])
sketch7.MapMode = "FlatFace"
sketch7.AttachmentOffset = App.Placement(Vector(0, 0, -24), App.Rotation())
add_polygon(sketch7, [(-40, 32), (-40, 40), (-26, 40), (-26, 32)])  # lines 0-3
sketch7.addConstraint(Sketcher.Constraint("Vertical", 0))
sketch7.addConstraint(Sketcher.Constraint("Horizontal", 1))
sketch7.addConstraint(Sketcher.Constraint("Vertical", 2))
sketch7.addConstraint(Sketcher.Constraint("Horizontal", 3))
sketch7.addConstraint(Sketcher.Constraint("DistanceY", 0, 1, 0, 2, Q("8 mm")))
sketch7.addConstraint(Sketcher.Constraint("DistanceY", -1, 1, 0, 2, Q("40 mm")))
sketch7.addConstraint(Sketcher.Constraint("DistanceX", 0, 2, -1, 1, Q("39.8 mm")))
sketch7.addConstraint(Sketcher.Constraint("DistanceX", 1, 1, 1, 2, Q("13.487908 mm")))
pocket6 = doc.addObject("PartDesign::Pocket", "Pocket005")
body.addObject(pocket6)
pocket6.Profile = sketch7
pocket6.Length = 21
pocket6.Reversed = True

# Sketch on XZ plane
sketch8 = doc.addObject("Sketcher::SketchObject", "Sketch007")
body.addObject(sketch8)
sketch8.AttachmentSupport = (doc.XZ_Plane, [""])
sketch8.MapMode = "FlatFace"
sketch8.AttachmentOffset = App.Placement(Vector(0, 0, -24), App.Rotation())
add_polygon(sketch8, [(-40, 32), (-40, 40), (-26, 40), (-26, 32)])  # lines 0-3
sketch8.addConstraint(Sketcher.Constraint("Vertical", 0))
sketch8.addConstraint(Sketcher.Constraint("Horizontal", 1))
sketch8.addConstraint(Sketcher.Constraint("Vertical", 2))
sketch8.addConstraint(Sketcher.Constraint("Horizontal", 3))
sketch8.addConstraint(Sketcher.Constraint("DistanceY", 0, 1, 0, 2, Q("8 mm")))
sketch8.addConstraint(Sketcher.Constraint("DistanceY", -1, 1, 0, 2, Q("40 mm")))
sketch8.addConstraint(Sketcher.Constraint("DistanceX", 0, 2, -1, 1, Q("39.8 mm")))
sketch8.addConstraint(Sketcher.Constraint("DistanceX", 1, 1, 1, 2, Q("13.487908 mm")))
pocket7 = doc.addObject("PartDesign::Pocket", "Pocket006")
body.addObject(pocket7)
pocket7.Profile = sketch8
pocket7.Length = 15

# Sketch on XZ plane
sketch9 = doc.addObject("Sketcher::SketchObject", "Sketch008")
body.addObject(sketch9)
sketch9.AttachmentSupport = (doc.XZ_Plane, [""])
sketch9.MapMode = "FlatFace"
sketch9.AttachmentOffset = App.Placement(Vector(0, 0, -39), App.Rotation())
add_polygon(sketch9, [(26, 32), (26, 40), (40, 40), (40, 32)])  # lines 0-3
sketch9.addConstraint(Sketcher.Constraint("Vertical", 0))
sketch9.addConstraint(Sketcher.Constraint("Horizontal", 1))
sketch9.addConstraint(Sketcher.Constraint("Vertical", 2))
sketch9.addConstraint(Sketcher.Constraint("Horizontal", 3))
sketch9.addConstraint(Sketcher.Constraint("DistanceY", 0, 1, 0, 2, Q("8 mm")))
sketch9.addConstraint(Sketcher.Constraint("DistanceY", -1, 1, 0, 2, Q("40 mm")))
sketch9.addConstraint(Sketcher.Constraint("DistanceX", -1, 1, 0, 2, Q("26.5 mm")))
sketch9.addConstraint(Sketcher.Constraint("DistanceX", 1, 1, 1, 2, Q("13.487908 mm")))
pocket8 = doc.addObject("PartDesign::Pocket", "Pocket007")
body.addObject(pocket8)
pocket8.Profile = sketch9
pocket8.Length = 21
pocket8.Reversed = True

# Sketch on XZ plane
sketch10 = doc.addObject("Sketcher::SketchObject", "Sketch009")
body.addObject(sketch10)
sketch10.AttachmentSupport = (doc.XZ_Plane, [""])
sketch10.MapMode = "FlatFace"
sketch10.AttachmentOffset = App.Placement(Vector(0, 0, -39), App.Rotation())
add_polygon(sketch10, [(26, 32), (26, 40), (40, 40), (40, 32)])  # lines 0-3
sketch10.addConstraint(Sketcher.Constraint("Vertical", 0))
sketch10.addConstraint(Sketcher.Constraint("Horizontal", 1))
sketch10.addConstraint(Sketcher.Constraint("Vertical", 2))
sketch10.addConstraint(Sketcher.Constraint("Horizontal", 3))
sketch10.addConstraint(Sketcher.Constraint("DistanceY", 0, 1, 0, 2, Q("8 mm")))
sketch10.addConstraint(Sketcher.Constraint("DistanceY", -1, 1, 0, 2, Q("40 mm")))
sketch10.addConstraint(Sketcher.Constraint("DistanceX", -1, 1, 0, 2, Q("26.5 mm")))
sketch10.addConstraint(Sketcher.Constraint("DistanceX", 1, 1, 1, 2, Q("13.487908 mm")))
pocket9 = doc.addObject("PartDesign::Pocket", "Pocket008")
body.addObject(pocket9)
pocket9.Profile = sketch10
pocket9.Length = 36
pocket9.Reversed = True

# Sketch on XZ plane
sketch11 = doc.addObject("Sketcher::SketchObject", "Sketch010")
body.addObject(sketch11)
sketch11.AttachmentSupport = (doc.XZ_Plane, [""])
sketch11.MapMode = "FlatFace"
sketch11.AttachmentOffset = App.Placement(Vector(0, 0, -3), App.Rotation())
sketch11.addGeometry(Part.Circle(Vector(-33.4, -36, 0), Vector(0, 0, 1), 2), False)
sketch11.addConstraint(Sketcher.Constraint("Diameter", 0, Q("4.1 mm")))
sketch11.addConstraint(Sketcher.Constraint("DistanceX", 0, 3, -1, 1, Q("33.395852 mm")))
sketch11.addConstraint(Sketcher.Constraint("DistanceY", 0, 3, -1, 1, Q("36.021594 mm")))
pocket10 = doc.addObject("PartDesign::Pocket", "Pocket009")
body.addObject(pocket10)
pocket10.Profile = sketch11
pocket10.Length = 3
pocket10.Reversed = True

# Sketch on XZ plane
sketch12 = doc.addObject("Sketcher::SketchObject", "Sketch011")
body.addObject(sketch12)
sketch12.AttachmentSupport = (doc.XZ_Plane, [""])
sketch12.MapMode = "FlatFace"
sketch12.AttachmentOffset = App.Placement(Vector(0, 0, -3), App.Rotation())
sketch12.addGeometry(Part.Circle(Vector(33.3, -35.9, 0), Vector(0, 0, 1), 2), False)
sketch12.addConstraint(Sketcher.Constraint("Diameter", 0, Q("4.1 mm")))
sketch12.addConstraint(Sketcher.Constraint("DistanceX", -1, 1, 0, 3, Q("33.312821 mm")))
sketch12.addConstraint(Sketcher.Constraint("DistanceY", 0, 3, -1, 1, Q("35.940655 mm")))
pocket11 = doc.addObject("PartDesign::Pocket", "Pocket010")
body.addObject(pocket11)
pocket11.Profile = sketch12
pocket11.Length = 3
pocket11.Reversed = True

# Sketch on XZ plane
sketch13 = doc.addObject("Sketcher::SketchObject", "Sketch012")
body.addObject(sketch13)
sketch13.AttachmentSupport = (doc.XZ_Plane, [""])
sketch13.MapMode = "FlatFace"
sketch13.AttachmentOffset = App.Placement(Vector(0, 0, -3), App.Rotation())
sketch13.addGeometry(Part.Circle(Vector(-33, 36.2, 0), Vector(0, 0, 1), 2), False)
sketch13.addConstraint(Sketcher.Constraint("Diameter", 0, Q("4.1 mm")))
sketch13.addConstraint(Sketcher.Constraint("DistanceX", 0, 3, -1, 1, Q("32.970813 mm")))
sketch13.addConstraint(Sketcher.Constraint("DistanceY", -1, 1, 0, 3, Q("36.238015 mm")))
pocket12 = doc.addObject("PartDesign::Pocket", "Pocket011")
body.addObject(pocket12)
pocket12.Profile = sketch13
pocket12.Length = 3
pocket12.Reversed = True

# Sketch on XZ plane
sketch14 = doc.addObject("Sketcher::SketchObject", "Sketch013")
body.addObject(sketch14)
sketch14.AttachmentSupport = (doc.XZ_Plane, [""])
sketch14.MapMode = "FlatFace"
sketch14.AttachmentOffset = App.Placement(Vector(0, 0, -3), App.Rotation())
sketch14.addGeometry(Part.Circle(Vector(33.3, 36.2, 0), Vector(0, 0, 1), 2), False)
sketch14.addConstraint(Sketcher.Constraint("Diameter", 0, Q("4.1 mm")))
sketch14.addConstraint(Sketcher.Constraint("DistanceY", -1, 1, 0, 3, Q("36.225041 mm")))
sketch14.addConstraint(Sketcher.Constraint("DistanceX", -1, 1, 0, 3, Q("33.252133 mm")))
pocket13 = doc.addObject("PartDesign::Pocket", "Pocket012")
body.addObject(pocket13)
pocket13.Profile = sketch14
pocket13.Length = 3
pocket13.Reversed = True

# Sketch on YZ plane
sketch15 = doc.addObject("Sketcher::SketchObject", "Sketch014")
body.addObject(sketch15)
sketch15.AttachmentSupport = (doc.YZ_Plane, [""])
sketch15.MapMode = "FlatFace"
sketch15.AttachmentOffset = App.Placement(Vector(0, 0, 50), App.Rotation())
add_polygon(sketch15, [(10, 20), (-10, 20), (-10, -20), (10, -20)])  # lines 0-3
sketch15.addConstraint(Sketcher.Constraint("Horizontal", 0))
sketch15.addConstraint(Sketcher.Constraint("Vertical", 1))
sketch15.addConstraint(Sketcher.Constraint("Horizontal", 2))
sketch15.addConstraint(Sketcher.Constraint("Vertical", 3))
sketch15.addConstraint(Sketcher.Constraint("Symmetric", 0, 2, 2, 2, -1, 1))
sketch15.addConstraint(Sketcher.Constraint("DistanceX", 0, 2, 0, 1, Q("20 mm")))
sketch15.addConstraint(Sketcher.Constraint("DistanceY", 1, 2, 1, 1, Q("40 mm")))
pocket14 = doc.addObject("PartDesign::Pocket", "Pocket013")
body.addObject(pocket14)
pocket14.Profile = sketch15
pocket14.Length = 10

# Sketch on YZ plane
sketch16 = doc.addObject("Sketcher::SketchObject", "Sketch015")
body.addObject(sketch16)
sketch16.AttachmentSupport = (doc.YZ_Plane, [""])
sketch16.MapMode = "FlatFace"
sketch16.AttachmentOffset = App.Placement(Vector(0, 0, 40), App.Rotation())
sketch16.addGeometry(Part.Circle(Vector(4.3, 15.4, 0), Vector(0, 0, 1), 2.5), False)
sketch16.addGeometry(Part.Circle(Vector(4.3, 6.4, 0), Vector(0, 0, 1), 2.5), False)
sketch16.addGeometry(Part.Circle(Vector(4.3, -5, 0), Vector(0, 0, 1), 2.5), False)
sketch16.addGeometry(Part.Circle(Vector(4.3, -14.4, 0), Vector(0, 0, 1), 2.5), False)
sketch16.addConstraint(Sketcher.Constraint("Equal", 0, 1))
sketch16.addConstraint(Sketcher.Constraint("Equal", 1, 2))
sketch16.addConstraint(Sketcher.Constraint("Equal", 2, 3))
sketch16.addConstraint(Sketcher.Constraint("Vertical", 0, 3, 1, 3))
sketch16.addConstraint(Sketcher.Constraint("Vertical", 1, 3, 2, 3))
sketch16.addConstraint(Sketcher.Constraint("Vertical", 2, 3, 3, 3))
sketch16.addConstraint(Sketcher.Constraint("Diameter", 0, Q("5 mm")))
sketch16.addConstraint(Sketcher.Constraint("DistanceY", 3, 3, 0, 3, Q("29.839599 mm")))
sketch16.addConstraint(Sketcher.Constraint("DistanceX", -1, 1, 0, 3, Q("4.286981 mm")))
sketch16.addConstraint(Sketcher.Constraint("DistanceY", -1, 1, 1, 3, Q("6.396528 mm")))
sketch16.addConstraint(Sketcher.Constraint("DistanceY", 3, 3, 1, 3, Q("20.814042 mm")))
sketch16.addConstraint(Sketcher.Constraint("DistanceY", 2, 3, -1, 1, Q("4.962167 mm")))
pad2 = doc.addObject("PartDesign::Pad", "Pad001")
body.addObject(pad2)
pad2.Profile = sketch16
pad2.Length = 10

doc.recompute()
